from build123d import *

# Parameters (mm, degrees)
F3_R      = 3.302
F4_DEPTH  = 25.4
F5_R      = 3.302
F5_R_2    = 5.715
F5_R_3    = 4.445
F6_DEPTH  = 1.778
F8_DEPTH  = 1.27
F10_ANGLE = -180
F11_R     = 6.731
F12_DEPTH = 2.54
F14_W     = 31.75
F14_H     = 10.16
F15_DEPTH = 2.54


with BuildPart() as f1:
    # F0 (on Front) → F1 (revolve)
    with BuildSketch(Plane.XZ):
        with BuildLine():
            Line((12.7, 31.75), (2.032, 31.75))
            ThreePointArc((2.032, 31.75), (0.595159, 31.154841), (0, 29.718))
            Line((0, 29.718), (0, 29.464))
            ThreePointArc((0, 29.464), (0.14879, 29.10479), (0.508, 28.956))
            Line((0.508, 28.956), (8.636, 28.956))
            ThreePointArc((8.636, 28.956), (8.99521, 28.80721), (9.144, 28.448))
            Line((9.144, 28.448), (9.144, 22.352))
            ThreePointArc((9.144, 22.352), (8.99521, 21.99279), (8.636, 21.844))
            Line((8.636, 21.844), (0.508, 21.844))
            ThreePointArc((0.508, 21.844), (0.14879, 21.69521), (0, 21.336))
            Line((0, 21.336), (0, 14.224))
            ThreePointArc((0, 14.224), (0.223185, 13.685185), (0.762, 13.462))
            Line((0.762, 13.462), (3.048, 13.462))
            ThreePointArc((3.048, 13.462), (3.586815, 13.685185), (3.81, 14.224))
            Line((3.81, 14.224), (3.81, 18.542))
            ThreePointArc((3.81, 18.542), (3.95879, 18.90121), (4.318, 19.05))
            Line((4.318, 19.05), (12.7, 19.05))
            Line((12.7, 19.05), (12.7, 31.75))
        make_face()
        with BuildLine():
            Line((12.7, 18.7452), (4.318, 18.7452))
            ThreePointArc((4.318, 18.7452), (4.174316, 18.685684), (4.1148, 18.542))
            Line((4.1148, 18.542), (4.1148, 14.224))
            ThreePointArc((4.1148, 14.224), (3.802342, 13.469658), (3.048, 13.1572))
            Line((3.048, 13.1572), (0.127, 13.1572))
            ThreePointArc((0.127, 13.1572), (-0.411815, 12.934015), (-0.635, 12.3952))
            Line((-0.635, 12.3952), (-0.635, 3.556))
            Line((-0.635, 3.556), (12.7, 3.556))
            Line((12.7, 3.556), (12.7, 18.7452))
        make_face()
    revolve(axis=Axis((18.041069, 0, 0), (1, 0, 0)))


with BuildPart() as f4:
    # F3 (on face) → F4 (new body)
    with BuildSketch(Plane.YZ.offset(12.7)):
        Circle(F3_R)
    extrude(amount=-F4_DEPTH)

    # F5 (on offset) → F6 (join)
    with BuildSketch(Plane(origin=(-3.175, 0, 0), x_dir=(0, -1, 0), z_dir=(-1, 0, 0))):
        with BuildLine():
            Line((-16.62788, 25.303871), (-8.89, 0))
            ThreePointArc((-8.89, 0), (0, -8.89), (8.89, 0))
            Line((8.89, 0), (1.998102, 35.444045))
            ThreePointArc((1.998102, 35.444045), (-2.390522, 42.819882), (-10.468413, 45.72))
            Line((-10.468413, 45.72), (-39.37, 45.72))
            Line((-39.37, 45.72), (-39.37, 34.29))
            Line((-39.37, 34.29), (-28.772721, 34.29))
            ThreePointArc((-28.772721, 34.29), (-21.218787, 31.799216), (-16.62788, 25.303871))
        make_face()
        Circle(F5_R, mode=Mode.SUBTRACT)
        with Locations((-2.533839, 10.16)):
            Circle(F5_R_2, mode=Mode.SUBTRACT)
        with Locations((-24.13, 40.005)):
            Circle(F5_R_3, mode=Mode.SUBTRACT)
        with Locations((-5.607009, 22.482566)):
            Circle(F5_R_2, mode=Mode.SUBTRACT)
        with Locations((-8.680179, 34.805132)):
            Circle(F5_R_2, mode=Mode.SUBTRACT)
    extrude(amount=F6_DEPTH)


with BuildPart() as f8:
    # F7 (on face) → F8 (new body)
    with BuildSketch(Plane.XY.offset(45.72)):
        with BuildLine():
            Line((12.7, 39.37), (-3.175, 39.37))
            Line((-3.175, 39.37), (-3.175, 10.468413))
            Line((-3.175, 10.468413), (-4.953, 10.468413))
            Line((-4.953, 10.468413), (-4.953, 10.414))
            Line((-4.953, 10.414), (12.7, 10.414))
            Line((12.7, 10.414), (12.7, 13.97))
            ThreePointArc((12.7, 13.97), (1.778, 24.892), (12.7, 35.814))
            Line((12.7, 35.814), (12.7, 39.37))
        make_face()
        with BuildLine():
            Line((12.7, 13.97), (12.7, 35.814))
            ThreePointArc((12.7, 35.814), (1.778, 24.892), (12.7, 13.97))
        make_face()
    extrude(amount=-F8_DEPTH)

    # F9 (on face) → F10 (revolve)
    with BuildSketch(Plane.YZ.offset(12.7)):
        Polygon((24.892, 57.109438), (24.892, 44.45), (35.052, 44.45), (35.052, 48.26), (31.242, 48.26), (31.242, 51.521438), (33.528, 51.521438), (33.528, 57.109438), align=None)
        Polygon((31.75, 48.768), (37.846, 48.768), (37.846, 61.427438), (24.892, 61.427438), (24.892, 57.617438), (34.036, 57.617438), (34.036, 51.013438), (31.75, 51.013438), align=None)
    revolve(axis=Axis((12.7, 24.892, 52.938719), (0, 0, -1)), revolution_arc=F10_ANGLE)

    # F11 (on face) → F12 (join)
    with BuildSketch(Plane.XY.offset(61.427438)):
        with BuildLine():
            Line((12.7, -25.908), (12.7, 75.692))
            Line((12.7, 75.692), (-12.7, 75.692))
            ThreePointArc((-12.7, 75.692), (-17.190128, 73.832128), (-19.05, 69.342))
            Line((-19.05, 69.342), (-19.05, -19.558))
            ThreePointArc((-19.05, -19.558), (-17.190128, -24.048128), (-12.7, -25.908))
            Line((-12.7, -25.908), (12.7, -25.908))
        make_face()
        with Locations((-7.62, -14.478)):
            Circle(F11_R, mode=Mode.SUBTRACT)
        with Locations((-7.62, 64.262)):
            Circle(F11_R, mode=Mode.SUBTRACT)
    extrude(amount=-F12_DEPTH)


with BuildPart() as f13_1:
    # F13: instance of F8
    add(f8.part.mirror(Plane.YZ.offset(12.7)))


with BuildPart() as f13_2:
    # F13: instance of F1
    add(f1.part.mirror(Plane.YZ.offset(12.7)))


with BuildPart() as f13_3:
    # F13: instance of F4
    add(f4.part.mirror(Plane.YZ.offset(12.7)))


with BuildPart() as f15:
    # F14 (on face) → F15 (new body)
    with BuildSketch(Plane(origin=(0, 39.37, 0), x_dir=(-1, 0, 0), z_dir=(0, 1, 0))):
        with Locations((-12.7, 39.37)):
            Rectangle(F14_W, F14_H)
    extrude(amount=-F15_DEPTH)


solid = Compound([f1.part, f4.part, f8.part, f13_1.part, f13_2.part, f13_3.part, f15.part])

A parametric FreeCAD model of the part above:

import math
import FreeCAD as App
import Part
import Sketcher
Q = App.Units.Quantity

doc = App.newDocument("Part")
body = doc.addObject("PartDesign::Body", "Body")
body.AllowCompound = True

# Sketch on XZ plane
sketch1 = doc.addObject("Sketcher::SketchObject", "Sketch")
body.addObject(sketch1)
sketch1.AttachmentSupport = (doc.XZ_Plane, [""])
sketch1.MapMode = "FlatFace"
sketch1.addGeometry([
    Part.LineSegment(App.Vector(12.7, 31.75, 0), App.Vector(2.032, 31.75, 0)),  # 0
    Part.ArcOfCircle(Part.Circle(App.Vector(2.032, 29.718, 0), App.Vector(0, 0, 1), 2.032), math.radians(89.999998), math.radians(180.000002)),  # 1
    Part.LineSegment(App.Vector(0, 29.718, 0), App.Vector(0, 29.464, 0)),  # 2
    Part.ArcOfCircle(Part.Circle(App.Vector(0.508001, 29.464001, 0), App.Vector(0, 0, 1), 0.508001), math.radians(-179.999906), math.radians(-90.000094)),  # 3
    Part.LineSegment(App.Vector(0.508, 28.956, 0), App.Vector(8.636, 28.956, 0)),  # 4
    Part.ArcOfCircle(Part.Circle(App.Vector(8.635999, 28.447999, 0), App.Vector(0, 0, 1), 0.508001), math.radians(0.000094), math.radians(89.999906)),  # 5
    Part.LineSegment(App.Vector(9.144, 28.448, 0), App.Vector(9.144, 22.352, 0)),  # 6
    Part.ArcOfCircle(Part.Circle(App.Vector(8.635999, 22.352001, 0), App.Vector(0, 0, 1), 0.508001), math.radians(-89.999906), math.radians(-0.000094)),  # 7
    Part.LineSegment(App.Vector(8.636, 21.844, 0), App.Vector(0.508, 21.844, 0)),  # 8
    Part.ArcOfCircle(Part.Circle(App.Vector(0.508001, 21.335999, 0), App.Vector(0, 0, 1), 0.508001), math.radians(90.000094), math.radians(179.999906)),  # 9
    Part.LineSegment(App.Vector(0, 21.336, 0), App.Vector(0, 14.224, 0)),  # 10
    Part.ArcOfCircle(Part.Circle(App.Vector(0.762001, 14.224001, 0), App.Vector(0, 0, 1), 0.762001), math.radians(-179.999906), math.radians(-90.000094)),  # 11
    Part.LineSegment(App.Vector(0.762, 13.462, 0), App.Vector(3.048, 13.462, 0)),  # 12
    Part.ArcOfCircle(Part.Circle(App.Vector(3.047999, 14.224001, 0), App.Vector(0, 0, 1), 0.762001), math.radians(-89.999906), math.radians(-0.000094)),  # 13
    Part.LineSegment(App.Vector(3.81, 14.224, 0), App.Vector(3.81, 18.542, 0)),  # 14
    Part.ArcOfCircle(Part.Circle(App.Vector(4.318001, 18.541999, 0), App.Vector(0, 0, 1), 0.508001), math.radians(90.000094), math.radians(179.999906)),  # 15
    Part.LineSegment(App.Vector(4.318, 19.05, 0), App.Vector(12.7, 19.05, 0)),  # 16
    Part.LineSegment(App.Vector(12.7, 19.05, 0), App.Vector(12.7, 31.75, 0)),  # 17
    Part.LineSegment(App.Vector(12.7, 18.7452, 0), App.Vector(4.318, 18.7452, 0)),  # 18
    Part.ArcOfCircle(Part.Circle(App.Vector(4.318, 18.542, 0), App.Vector(0, 0, 1), 0.2032), math.radians(90.000094), math.radians(179.999906)),  # 19
    Part.LineSegment(App.Vector(4.1148, 18.542, 0), App.Vector(4.1148, 14.224, 0)),  # 20
    Part.ArcOfCircle(Part.Circle(App.Vector(3.048002, 14.223998, 0), App.Vector(0, 0, 1), 1.066798), math.radians(-90.000089), math.radians(0.000089)),  # 21
    Part.LineSegment(App.Vector(3.048, 13.1572, 0), App.Vector(0.127, 13.1572, 0)),  # 22
    Part.ArcOfCircle(Part.Circle(App.Vector(0.127001, 12.395199, 0), App.Vector(0, 0, 1), 0.762001), math.radians(90.000094), math.radians(179.999906)),  # 23
    Part.LineSegment(App.Vector(-0.635, 12.3952, 0), App.Vector(-0.635, 3.556, 0)),  # 24
    Part.LineSegment(App.Vector(-0.635, 3.556, 0), App.Vector(12.7, 3.556, 0)),  # 25
    Part.LineSegment(App.Vector(12.7, 3.556, 0), App.Vector(12.7, 18.7452, 0)),  # 26
], False)
sketch1.addConstraint([
    Sketcher.Constraint("Tangent", 0, 2, 1, 1),
    Sketcher.Constraint("Tangent", 1, 2, 2, 1),
    Sketcher.Constraint("Tangent", 2, 2, 3, 1),
    Sketcher.Constraint("Tangent", 3, 2, 4, 1),
    Sketcher.Constraint("Tangent", 4, 2, 5, 2),
    Sketcher.Constraint("Tangent", 5, 1, 6, 1),
    Sketcher.Constraint("Tangent", 6, 2, 7, 2),
    Sketcher.Constraint("Tangent", 7, 1, 8, 1),
    Sketcher.Constraint("Tangent", 8, 2, 9, 1),
    Sketcher.Constraint("Tangent", 9, 2, 10, 1),
    Sketcher.Constraint("Tangent", 10, 2, 11, 1),
    Sketcher.Constraint("Tangent", 11, 2, 12, 1),
    Sketcher.Constraint("Tangent", 12, 2, 13, 1),
    Sketcher.Constraint("Tangent", 13, 2, 14, 1),
    Sketcher.Constraint("Tangent", 14, 2, 15, 2),
    Sketcher.Constraint("Tangent", 15, 1, 16, 1),
    Sketcher.Constraint("Coincident", 16, 2, 17, 1),
    Sketcher.Constraint("Coincident", 17, 2, 0, 1),
    Sketcher.Constraint("Tangent", 18, 2, 19, 1),
    Sketcher.Constraint("Tangent", 19, 2, 20, 1),
    Sketcher.Constraint("Tangent", 20, 2, 21, 2),
    Sketcher.Constraint("Tangent", 21, 1, 22, 1),
    Sketcher.Constraint("Tangent", 22, 2, 23, 1),
    Sketcher.Constraint("Tangent", 23, 2, 24, 1),
    Sketcher.Constraint("Coincident", 24, 2, 25, 1),
    Sketcher.Constraint("Coincident", 25, 2, 26, 1),
    Sketcher.Constraint("Coincident", 26, 2, 18, 1),
    Sketcher.Constraint("Horizontal", 0),
    Sketcher.Constraint("Vertical", 2),
    Sketcher.Constraint("Horizontal", 4),
    Sketcher.Constraint("Vertical", 6),
    Sketcher.Constraint("Horizontal", 8),
    Sketcher.Constraint("Vertical", 10),
    Sketcher.Constraint("Horizontal", 12),
    Sketcher.Constraint("Vertical", 14),
    Sketcher.Constraint("Horizontal", 16),
    Sketcher.Constraint("Vertical", 17),
    Sketcher.Constraint("Horizontal", 18),
    Sketcher.Constraint("Vertical", 20),
    Sketcher.Constraint("Horizontal", 22),
    Sketcher.Constraint("Vertical", 24),
    Sketcher.Constraint("Horizontal", 25),
    Sketcher.Constraint("Vertical", 26),
    Sketcher.Constraint("Coincident", 19, 3, 15, 3),
    Sketcher.Constraint("Coincident", 21, 3, 13, 3),
    Sketcher.Constraint("Equal", 3, 5),
    Sketcher.Constraint("Equal", 5, 7),
    Sketcher.Constraint("Equal", 7, 9),
    Sketcher.Constraint("Equal", 11, 13),
    Sketcher.Constraint("Equal", 9, 15),
    Sketcher.Constraint("Equal", 13, 23),
    Sketcher.Constraint("PointOnObject", 1, 2, -2),
    Sketcher.Constraint("PointOnObject", 9, 2, -2),
    Sketcher.Constraint("Vertical", 17, 2, 25, 2),
    Sketcher.Constraint("Radius", 1, Q("0.08 in")),
    Sketcher.Constraint("Radius", 3, Q("0.02 in")),
    Sketcher.Constraint("Radius", 11, Q("0.03 in")),
    Sketcher.Constraint("DistanceY", 17, 1, 17, 2, Q("0.5 in")),
    Sketcher.Constraint("Radius", 19, Q("0.008 in")),
    Sketcher.Constraint("DistanceX", 0, 2, 0, 1, Q("0.42 in")),
    Sketcher.Constraint("DistanceX", 4, 1, 4, 2, Q("0.32 in")),
    Sketcher.Constraint("DistanceX", 12, 1, 12, 2, Q("0.09 in")),
    Sketcher.Constraint("DistanceY", 2, 2, 2, 1, Q("0.01 in")),
    Sketcher.Constraint("DistanceY", 6, 2, 6, 1, Q("0.24 in")),
    Sketcher.Constraint("DistanceY", 10, 2, 10, 1, Q("0.28 in")),
    Sketcher.Constraint("DistanceX", 22, 2, 22, 1, Q("0.115 in")),
    Sketcher.Constraint("DistanceY", 24, 2, 24, 1, Q("0.348 in")),
    Sketcher.Constraint("DistanceY", -1, 1, 1, 3, Q("1.17 in")),
])
revolution = doc.addObject("PartDesign::Revolution", "Revolution")
body.addObject(revolution)
revolution.Profile = sketch1
revolution.ReferenceAxis = (sketch1, ["H_Axis"])
revolution.Angle = 360
body2 = doc.addObject("PartDesign::Body", "Body001")

# Sketch on YZ plane
sketch2 = doc.addObject("Sketcher::SketchObject", "Sketch001")
body2.addObject(sketch2)
sketch2.AttachmentSupport = (doc.getObject("YZ_Plane001"), [""])
sketch2.MapMode = "FlatFace"
sketch2.AttachmentOffset = App.Placement(App.Vector(0, 0, 0.5 * 25.4), App.Rotation())
sketch2.addGeometry(Part.Circle(App.Vector(0, 0, 0), App.Vector(0, 0, 1), 3.302), False)
sketch2.addConstraint([
    Sketcher.Constraint("Coincident", 0, 3, -1, 1),
    Sketcher.Constraint("Diameter", 0, Q("0.26 in")),
])
pad1 = doc.addObject("PartDesign::Pad", "Pad")
body2.addObject(pad1)
pad1.Profile = sketch2
pad1.Length = Q("1 in")
pad1.Reversed = True

# Sketch on YZ plane
sketch3 = doc.addObject("Sketcher::SketchObject", "Sketch002")
body2.addObject(sketch3)
sketch3.AttachmentSupport = (doc.getObject("YZ_Plane001"), [""])
sketch3.MapMode = "FlatFace"
sketch3.AttachmentOffset = App.Placement(App.Vector(0, 0, -0.125 * 25.4), App.Rotation())
sketch3.addGeometry([
    Part.LineSegment(App.Vector(16.62788, 25.303871, 0), App.Vector(8.89, 0, 0)),  # 0
    Part.ArcOfCircle(Part.Circle(App.Vector(0, 0, 0), App.Vector(0, 0, 1), 8.89), math.radians(180), math.radians(360)),  # 1
    Part.LineSegment(App.Vector(-8.89, 0, 0), App.Vector(-1.998102, 35.444045, 0)),  # 2
    Part.ArcOfCircle(Part.Circle(App.Vector(10.468412, 33.020002, 0), App.Vector(0, 0, 1), 12.699998), math.radians(89.999994), math.radians(168.996466)),  # 3
    Part.LineSegment(App.Vector(10.468413, 45.72, 0), App.Vector(39.37, 45.72, 0)),  # 4
    Part.LineSegment(App.Vector(39.37, 45.72, 0), App.Vector(39.37, 34.29, 0)),  # 5
    Part.LineSegment(App.Vector(39.37, 34.29, 0), App.Vector(28.772721, 34.29, 0)),  # 6
    Part.ArcOfCircle(Part.Circle(App.Vector(28.77272, 21.590002, 0), App.Vector(0, 0, 1), 12.699998), math.radians(89.999995), math.radians(162.996465)),  # 7
    Part.Circle(App.Vector(0, 0, 0), App.Vector(0, 0, 1), 3.302),  # 8
    Part.Circle(App.Vector(2.533839, 10.16, 0), App.Vector(0, 0, 1), 5.715),  # 9
    Part.Circle(App.Vector(24.13, 40.005, 0), App.Vector(0, 0, 1), 4.445),  # 10
    Part.Circle(App.Vector(5.607009, 22.482566, 0), App.Vector(0, 0, 1), 5.715),  # 11
    Part.Circle(App.Vector(8.680179, 34.805132, 0), App.Vector(0, 0, 1), 5.715),  # 12
], False)
sketch3.addConstraint([
    Sketcher.Constraint("Coincident", 0, 2, 1, 2),
    Sketcher.Constraint("Coincident", 1, 1, 2, 1),
    Sketcher.Constraint("Tangent", 2, 2, 3, 2),
    Sketcher.Constraint("Tangent", 3, 1, 4, 1),
    Sketcher.Constraint("Coincident", 4, 2, 5, 1),
    Sketcher.Constraint("Coincident", 5, 2, 6, 1),
    Sketcher.Constraint("Tangent", 6, 2, 7, 1),
    Sketcher.Constraint("Tangent", 7, 2, 0, 1),
    Sketcher.Constraint("Horizontal", 4),
    Sketcher.Constraint("Vertical", 5),
    Sketcher.Constraint("Horizontal", 6),
    Sketcher.Constraint("Coincident", 1, 3, -1, 1),
    Sketcher.Constraint("Coincident", 8, 3, -1, 1),
    Sketcher.Constraint("Equal", 3, 7),
    Sketcher.Constraint("Equal", 9, 11),
    Sketcher.Constraint("Equal", 11, 12),
    Sketcher.Constraint("PointOnObject", 0, 2, -1),
    Sketcher.Constraint("PointOnObject", 1, 1, -1),
    Sketcher.Constraint("Radius", 3, Q("0.4999999 in")),
    Sketcher.Constraint("Diameter", 8, Q("0.26 in")),
    Sketcher.Constraint("Diameter", 9, Q("0.45 in")),
    Sketcher.Constraint("Diameter", 10, Q("0.35 in")),
    Sketcher.Constraint("Radius", 1, Q("0.35 in")),
    Sketcher.Constraint("DistanceY", 5, 2, 5, 1, Q("0.45 in")),
    Sketcher.Constraint("DistanceY", -1, 1, 3, 3, Q("1.3000001 in")),
    Sketcher.Constraint("DistanceY", -1, 1, 9, 3, Q("0.4 in")),
    Sketcher.Constraint("DistanceX", 10, 3, 4, 2, Q("0.6 in")),
    Sketcher.Constraint("DistanceX", -1, 1, 10, 3, Q("0.95 in")),
    Sketcher.Constraint("DistanceY", -1, 1, 10, 3, Q("1.575 in")),
    Sketcher.Constraint("DistanceX", 6, 2, 6, 1, 10.597279),
    Sketcher.Constraint("DistanceX", 2, 2, 10, 3, 26.128102),
    Sketcher.Constraint("DistanceX", 12, 3, 7, 2, 7.947701),
    Sketcher.Constraint("DistanceX", -1, 1, 9, 3, 2.533839),
    Sketcher.Constraint("DistanceX", -1, 1, 11, 3, 5.607009),
    Sketcher.Constraint("DistanceY", 3, 3, 12, 3, 1.78513),
    Sketcher.Constraint("DistanceY", 11, 3, 2, 2, 12.961479),
])
pad2 = doc.addObject("PartDesign::Pad", "Pad001")
body2.addObject(pad2)
pad2.Profile = sketch3
pad2.Length = Q("0.07 in")
pad2.Reversed = True
body3 = doc.addObject("PartDesign::Body", "Body002")
body3.AllowCompound = True

# Sketch on XY plane
sketch4 = doc.addObject("Sketcher::SketchObject", "Sketch003")
body3.addObject(sketch4)
sketch4.AttachmentSupport = (doc.getObject("XY_Plane002"), [""])
sketch4.MapMode = "FlatFace"
sketch4.AttachmentOffset = App.Placement(App.Vector(0, 0, 1.8 * 25.4), App.Rotation())
sketch4.addGeometry([
    Part.LineSegment(App.Vector(12.7, 39.37, 0), App.Vector(-3.175, 39.37, 0)),  # 0
    Part.LineSegment(App.Vector(-3.175, 39.37, 0), App.Vector(-3.175, 10.468413, 0)),  # 1
    Part.LineSegment(App.Vector(-3.175, 10.468413, 0), App.Vector(-4.953, 10.468413, 0)),  # 2
    Part.LineSegment(App.Vector(-4.953, 10.468413, 0), App.Vector(-4.953, 10.414, 0)),  # 3
    Part.LineSegment(App.Vector(-4.953, 10.414, 0), App.Vector(12.7, 10.414, 0)),  # 4
    Part.LineSegment(App.Vector(12.7, 10.414, 0), App.Vector(12.7, 39.37, 0)),  # 5
], False)
sketch4.addConstraint([
    Sketcher.Constraint("Coincident", 0, 2, 1, 1),
    Sketcher.Constraint("Coincident", 1, 2, 2, 1),
    Sketcher.Constraint("Coincident", 2, 2, 3, 1),
    Sketcher.Constraint("Coincident", 3, 2, 4, 1),
    Sketcher.Constraint("Coincident", 4, 2, 5, 1),
    Sketcher.Constraint("Coincident", 5, 2, 0, 1),
    Sketcher.Constraint("Horizontal", 0),
    Sketcher.Constraint("Vertical", 1),
    Sketcher.Constraint("Horizontal", 2),
    Sketcher.Constraint("Vertical", 3),
    Sketcher.Constraint("Horizontal", 4),
    Sketcher.Constraint("Vertical", 5),
    Sketcher.Constraint("DistanceX", 2, 2, 2, 1, Q("0.07 in")),
    Sketcher.Constraint("DistanceY", 5, 1, 5, 2, Q("1.14 in")),
    Sketcher.Constraint("DistanceX", -1, 1, 4, 2, Q("0.5 in")),
    Sketcher.Constraint("DistanceX", 0, 2, 0, 1, Q("0.625 in")),
    Sketcher.Constraint("DistanceY", -1, 1, 0, 2, Q("1.55 in")),
    Sketcher.Constraint("DistanceY", 1, 2, 1, 1, 28.901587),
])
pad3 = doc.addObject("PartDesign::Pad", "Pad002")
body3.addObject(pad3)
pad3.Profile = sketch4
pad3.Length = Q("0.05 in")
pad3.Reversed = True

# Sketch on YZ plane
sketch5 = doc.addObject("Sketcher::SketchObject", "Sketch004")
body3.addObject(sketch5)
sketch5.AttachmentSupport = (doc.getObject("YZ_Plane002"), [""])
sketch5.MapMode = "FlatFace"
sketch5.AttachmentOffset = App.Placement(App.Vector(0, 0, 0.5 * 25.4), App.Rotation())
sketch5.addGeometry([
    Part.LineSegment(App.Vector(24.892, 57.109438, 0), App.Vector(24.892, 44.45, 0)),  # 0
    Part.LineSegment(App.Vector(24.892, 44.45, 0), App.Vector(35.052, 44.45, 0)),  # 1
    Part.LineSegment(App.Vector(35.052, 44.45, 0), App.Vector(35.052, 48.26, 0)),  # 2
    Part.LineSegment(App.Vector(35.052, 48.26, 0), App.Vector(31.242, 48.26, 0)),  # 3
    Part.LineSegment(App.Vector(31.242, 48.26, 0), App.Vector(31.242, 51.521438, 0)),  # 4
    Part.LineSegment(App.Vector(31.242, 51.521438, 0), App.Vector(33.528, 51.521438, 0)),  # 5
    Part.LineSegment(App.Vector(33.528, 51.521438, 0), App.Vector(33.528, 57.109438, 0)),  # 6
    Part.LineSegment(App.Vector(33.528, 57.109438, 0), App.Vector(24.892, 57.109438, 0)),  # 7
    Part.LineSegment(App.Vector(31.75, 48.768, 0), App.Vector(37.846, 48.768, 0)),  # 8
    Part.LineSegment(App.Vector(37.846, 48.768, 0), App.Vector(37.846, 61.427438, 0)),  # 9
    Part.LineSegment(App.Vector(37.846, 61.427438, 0), App.Vector(24.892, 61.427438, 0)),  # 10
    Part.LineSegment(App.Vector(24.892, 61.427438, 0), App.Vector(24.892, 57.617438, 0)),  # 11
    Part.LineSegment(App.Vector(24.892, 57.617438, 0), App.Vector(34.036, 57.617438, 0)),  # 12
    Part.LineSegment(App.Vector(34.036, 57.617438, 0), App.Vector(34.036, 51.013438, 0)),  # 13
    Part.LineSegment(App.Vector(34.036, 51.013438, 0), App.Vector(31.75, 51.013438, 0)),  # 14
    Part.LineSegment(App.Vector(31.75, 51.013438, 0), App.Vector(31.75, 48.768, 0)),  # 15
], False)
sketch5.addGeometry(Part.LineSegment(App.Vector(24.892, 61.427438, 0), App.Vector(24.892, 44.45, 0)), True)  # axis
sketch5.addConstraint([
    Sketcher.Constraint("Coincident", 0, 2, 1, 1),
    Sketcher.Constraint("Coincident", 1, 2, 2, 1),
    Sketcher.Constraint("Coincident", 2, 2, 3, 1),
    Sketcher.Constraint("Coincident", 3, 2, 4, 1),
    Sketcher.Constraint("Coincident", 4, 2, 5, 1),
    Sketcher.Constraint("Coincident", 5, 2, 6, 1),
    Sketcher.Constraint("Coincident", 6, 2, 7, 1),
    Sketcher.Constraint("Coincident", 7, 2, 0, 1),
    Sketcher.Constraint("Coincident", 8, 2, 9, 1),
    Sketcher.Constraint("Coincident", 9, 2, 10, 1),
    Sketcher.Constraint("Coincident", 10, 2, 11, 1),
    Sketcher.Constraint("Coincident", 11, 2, 12, 1),
    Sketcher.Constraint("Coincident", 12, 2, 13, 1),
    Sketcher.Constraint("Coincident", 13, 2, 14, 1),
    Sketcher.Constraint("Coincident", 14, 2, 15, 1),
    Sketcher.Constraint("Coincident", 15, 2, 8, 1),
    Sketcher.Constraint("Vertical", 0),
    Sketcher.Constraint("Horizontal", 1),
    Sketcher.Constraint("Vertical", 2),
    Sketcher.Constraint("Horizontal", 3),
    Sketcher.Constraint("Vertical", 4),
    Sketcher.Constraint("Horizontal", 5),
    Sketcher.Constraint("Vertical", 6),
    Sketcher.Constraint("Horizontal", 7),
    Sketcher.Constraint("Horizontal", 8),
    Sketcher.Constraint("Vertical", 9),
    Sketcher.Constraint("Horizontal", 10),
    Sketcher.Constraint("Vertical", 11),
    Sketcher.Constraint("Horizontal", 12),
    Sketcher.Constraint("Vertical", 13),
    Sketcher.Constraint("Horizontal", 14),
    Sketcher.Constraint("Vertical", 15),
    Sketcher.Constraint("Vertical", 16),
    Sketcher.Constraint("Coincident", 16, 1, 10, 2),
    Sketcher.Constraint("Coincident", 16, 2, 0, 2),
    Sketcher.Constraint("Equal", 5, 14),
    Sketcher.Constraint("Equal", 3, 2),
    Sketcher.Constraint("Equal", 0, 9),
    Sketcher.Constraint("Equal", 2, 11),
    Sketcher.Constraint("DistanceX", 1, 1, 1, 2, Q("0.4 in")),
    Sketcher.Constraint("DistanceX", 3, 2, 3, 1, Q("0.15 in")),
    Sketcher.Constraint("DistanceX", 5, 1, 5, 2, Q("0.09 in")),
    Sketcher.Constraint("DistanceX", 8, 1, 8, 2, Q("0.24 in")),
    Sketcher.Constraint("DistanceX", 10, 2, 10, 1, Q("0.51 in")),
    Sketcher.Constraint("DistanceY", 6, 1, 6, 2, Q("0.22 in")),
    Sketcher.Constraint("DistanceY", 13, 2, 13, 1, Q("0.26 in")),
    Sketcher.Constraint("DistanceY", -1, 1, 2, 2, Q("1.9 in")),
    Sketcher.Constraint("DistanceX", -1, 1, 0, 2, Q("0.98 in")),
    Sketcher.Constraint("DistanceY", -1, 1, 8, 2, Q("1.92 in")),
    Sketcher.Constraint("DistanceY", 4, 1, 4, 2, 3.261438),
])
revolution2 = doc.addObject("PartDesign::Revolution", "Revolution001")
body3.addObject(revolution2)
revolution2.Profile = sketch5
revolution2.ReferenceAxis = (sketch5, ["Axis0"])
revolution2.Angle = 180
revolution2.Reversed = True

# Sketch on XY plane
sketch6 = doc.addObject("Sketcher::SketchObject", "Sketch005")
body3.addObject(sketch6)
sketch6.AttachmentSupport = (doc.getObject("XY_Plane002"), [""])
sketch6.MapMode = "FlatFace"
sketch6.AttachmentOffset = App.Placement(App.Vector(0, 0, 61.427438), App.Rotation())
sketch6.addGeometry([
    Part.LineSegment(App.Vector(12.7, -25.908, 0), App.Vector(12.7, 75.692, 0)),  # 0
    Part.LineSegment(App.Vector(12.7, 75.692, 0), App.Vector(-12.7, 75.692, 0)),  # 1
    Part.ArcOfCircle(Part.Circle(App.Vector(-12.7, 69.342, 0), App.Vector(0, 0, 1), 6.35), math.radians(90.000002), math.radians(179.999998)),  # 2
    Part.LineSegment(App.Vector(-19.05, 69.342, 0), App.Vector(-19.05, -19.558, 0)),  # 3
    Part.ArcOfCircle(Part.Circle(App.Vector(-12.7, -19.558, 0), App.Vector(0, 0, 1), 6.35), math.radians(-179.999998), math.radians(-90.000002)),  # 4
    Part.LineSegment(App.Vector(-12.7, -25.908, 0), App.Vector(12.7, -25.908, 0)),  # 5
    Part.Circle(App.Vector(-7.62, -14.478, 0), App.Vector(0, 0, 1), 6.731),  # 6
    Part.Circle(App.Vector(-7.62, 64.262, 0), App.Vector(0, 0, 1), 6.731),  # 7
], False)
sketch6.addConstraint([
    Sketcher.Constraint("Coincident", 0, 2, 1, 1),
    Sketcher.Constraint("Tangent", 1, 2, 2, 1),
    Sketcher.Constraint("Tangent", 2, 2, 3, 1),
    Sketcher.Constraint("Tangent", 3, 2, 4, 1),
    Sketcher.Constraint("Tangent", 4, 2, 5, 1),
    Sketcher.Constraint("Coincident", 5, 2, 0, 1),
    Sketcher.Constraint("Vertical", 0),
    Sketcher.Constraint("Horizontal", 1),
    Sketcher.Constraint("Vertical", 3),
    Sketcher.Constraint("Horizontal", 5),
    Sketcher.Constraint("Equal", 2, 4),
    Sketcher.Constraint("Equal", 6, 7),
    Sketcher.Constraint("Vertical", 6, 3, 7, 3),
    Sketcher.Constraint("Diameter", 6, Q("0.53 in")),
    Sketcher.Constraint("DistanceX", 1, 2, 1, 1, Q("1 in")),
    Sketcher.Constraint("DistanceY", 0, 1, 0, 2, Q("4 in")),
    Sketcher.Constraint("Radius", 2, Q("0.25 in")),
    Sketcher.Constraint("DistanceX", 2, 3, -1, 1, Q("0.5 in")),
    Sketcher.Constraint("DistanceX", 6, 3, -1, 1, Q("0.3 in")),
    Sketcher.Constraint("DistanceY", 4, 3, 6, 3, Q("0.2 in")),
    Sketcher.Constraint("DistanceY", 7, 3, 2, 3, Q("0.2 in")),
    Sketcher.Constraint("DistanceY", -1, 1, 2, 3, Q("2.73 in")),
])
pad4 = doc.addObject("PartDesign::Pad", "Pad003")
body3.addObject(pad4)
pad4.Profile = sketch6
pad4.Length = Q("0.1 in")
pad4.Reversed = True
body4 = doc.addObject("PartDesign::Body", "Body003")
body4.AllowCompound = True
doc.recompute()

mirroring = doc.addObject("Part::Mirroring", "Mirroring")
mirroring.Source = body3
mirroring.Base = App.Vector(12.7, 0, 0)
mirroring.Normal = App.Vector(1, 0, 0)
body4.BaseFeature = mirroring
doc.recompute()
body5 = doc.addObject("PartDesign::Body", "Body004")
body5.AllowCompound = True
doc.recompute()

mirroring2 = doc.addObject("Part::Mirroring", "Mirroring001")
mirroring2.Source = body
mirroring2.Base = App.Vector(12.7, 0, 0)
mirroring2.Normal = App.Vector(1, 0, 0)
body5.BaseFeature = mirroring2
doc.recompute()
body6 = doc.addObject("PartDesign::Body", "Body005")
doc.recompute()

mirroring3 = doc.addObject("Part::Mirroring", "Mirroring002")
mirroring3.Source = body2
mirroring3.Base = App.Vector(12.7, 0, 0)
mirroring3.Normal = App.Vector(1, 0, 0)
body6.BaseFeature = mirroring3
doc.recompute()
body7 = doc.addObject("PartDesign::Body", "Body006")

# Sketch on XZ plane
sketch7 = doc.addObject("Sketcher::SketchObject", "Sketch006")
body7.addObject(sketch7)
sketch7.AttachmentSupport = (doc.getObject("XZ_Plane006"), [""])
sketch7.MapMode = "FlatFace"
sketch7.AttachmentOffset = App.Placement(App.Vector(0, 0, -1.55 * 25.4), App.Rotation())
sketch7.addGeometry([
    Part.LineSegment(App.Vector(28.575, 44.45, 0), App.Vector(28.575, 34.29, 0)),
    Part.LineSegment(App.Vector(28.575, 34.29, 0), App.Vector(-3.175, 34.29, 0)),
    Part.LineSegment(App.Vector(-3.175, 34.29, 0), App.Vector(-3.175, 44.45, 0)),
    Part.LineSegment(App.Vector(-3.175, 44.45, 0), App.Vector(28.575, 44.45, 0)),
], False)
sketch7.addConstraint([
    Sketcher.Constraint("Coincident", 0, 2, 1, 1),
    Sketcher.Constraint("Coincident", 1, 2, 2, 1),
    Sketcher.Constraint("Coincident", 2, 2, 3, 1),
    Sketcher.Constraint("Coincident", 3, 2, 0, 1),
    Sketcher.Constraint("Vertical", 0),
    Sketcher.Constraint("Horizontal", 1),
    Sketcher.Constraint("Vertical", 2),
    Sketcher.Constraint("Horizontal", 3),
    Sketcher.Constraint("DistanceY", 0, 2, 0, 1, Q("0.4 in")),
    Sketcher.Constraint("DistanceX", 1, 2, 1, 1, Q("1.25 in")),
    Sketcher.Constraint("DistanceY", -1, 1, 0, 2, Q("1.35 in")),
    Sketcher.Constraint("DistanceX", -1, 1, 0, 2, Q("1.125 in")),
])
pad5 = doc.addObject("PartDesign::Pad", "Pad004")
body7.addObject(pad5)
pad5.Profile = sketch7
pad5.Length = Q("0.1 in")
mirroring.Visibility = False
mirroring2.Visibility = False
mirroring3.Visibility = False

doc.recompute()
